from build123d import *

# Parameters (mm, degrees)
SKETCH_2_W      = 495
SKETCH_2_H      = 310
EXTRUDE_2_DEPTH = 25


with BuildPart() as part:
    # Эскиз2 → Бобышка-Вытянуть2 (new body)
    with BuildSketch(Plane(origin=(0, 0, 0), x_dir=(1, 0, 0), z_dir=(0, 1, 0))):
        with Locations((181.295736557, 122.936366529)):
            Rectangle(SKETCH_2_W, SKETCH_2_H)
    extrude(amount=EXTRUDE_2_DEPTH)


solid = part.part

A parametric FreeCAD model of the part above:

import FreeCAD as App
import Part
import Sketcher

V = App.Vector
Q = App.Units.Quantity


def add_polygon(sketch, points):
    """Adds a closed chain of lines whose ends are joined by coincident constraints."""
    first, n = sketch.GeometryCount, len(points)
    for a, b in zip(points, points[1:] + points[:1]):
        sketch.addGeometry(Part.LineSegment(App.Vector(*a, 0), App.Vector(*b, 0)), False)
    for i in range(n):
        sketch.addConstraint(Sketcher.Constraint("Coincident", first + i, 2, first + (i + 1) % n, 1))

doc = App.newDocument("Part")
body = doc.addObject("PartDesign::Body", "Body")

# Sketch on XZ plane
sketch1 = doc.addObject("Sketcher::SketchObject", "Sketch")
body.addObject(sketch1)
sketch1.AttachmentSupport = (doc.XZ_Plane, [""])
sketch1.MapMode = "FlatFace"
add_polygon(sketch1, [(-66, -278), (-66, 32), (429, 32), (429, -278)])  # lines 0-3
sketch1.addConstraint(Sketcher.Constraint("Vertical", 0))
sketch1.addConstraint(Sketcher.Constraint("Horizontal", 1))
sketch1.addConstraint(Sketcher.Constraint("Vertical", 2))
sketch1.addConstraint(Sketcher.Constraint("Horizontal", 3))
sketch1.addConstraint(Sketcher.Constraint("DistanceX", 1, 1, 1, 2, Q("495 mm")))
sketch1.addConstraint(Sketcher.Constraint("DistanceY", 0, 1, 0, 2, Q("310 mm")))
sketch1.addConstraint(Sketcher.Constraint("DistanceX", 0, 2, -1, 1, Q("66.204263 mm")))
sketch1.addConstraint(Sketcher.Constraint("DistanceY", -1, 1, 0, 2, Q("32.063633 mm")))
pad1 = doc.addObject("PartDesign::Pad", "Pad")
body.addObject(pad1)
pad1.Profile = sketch1
pad1.Length = 25
pad1.Reversed = True

doc.recompute()
